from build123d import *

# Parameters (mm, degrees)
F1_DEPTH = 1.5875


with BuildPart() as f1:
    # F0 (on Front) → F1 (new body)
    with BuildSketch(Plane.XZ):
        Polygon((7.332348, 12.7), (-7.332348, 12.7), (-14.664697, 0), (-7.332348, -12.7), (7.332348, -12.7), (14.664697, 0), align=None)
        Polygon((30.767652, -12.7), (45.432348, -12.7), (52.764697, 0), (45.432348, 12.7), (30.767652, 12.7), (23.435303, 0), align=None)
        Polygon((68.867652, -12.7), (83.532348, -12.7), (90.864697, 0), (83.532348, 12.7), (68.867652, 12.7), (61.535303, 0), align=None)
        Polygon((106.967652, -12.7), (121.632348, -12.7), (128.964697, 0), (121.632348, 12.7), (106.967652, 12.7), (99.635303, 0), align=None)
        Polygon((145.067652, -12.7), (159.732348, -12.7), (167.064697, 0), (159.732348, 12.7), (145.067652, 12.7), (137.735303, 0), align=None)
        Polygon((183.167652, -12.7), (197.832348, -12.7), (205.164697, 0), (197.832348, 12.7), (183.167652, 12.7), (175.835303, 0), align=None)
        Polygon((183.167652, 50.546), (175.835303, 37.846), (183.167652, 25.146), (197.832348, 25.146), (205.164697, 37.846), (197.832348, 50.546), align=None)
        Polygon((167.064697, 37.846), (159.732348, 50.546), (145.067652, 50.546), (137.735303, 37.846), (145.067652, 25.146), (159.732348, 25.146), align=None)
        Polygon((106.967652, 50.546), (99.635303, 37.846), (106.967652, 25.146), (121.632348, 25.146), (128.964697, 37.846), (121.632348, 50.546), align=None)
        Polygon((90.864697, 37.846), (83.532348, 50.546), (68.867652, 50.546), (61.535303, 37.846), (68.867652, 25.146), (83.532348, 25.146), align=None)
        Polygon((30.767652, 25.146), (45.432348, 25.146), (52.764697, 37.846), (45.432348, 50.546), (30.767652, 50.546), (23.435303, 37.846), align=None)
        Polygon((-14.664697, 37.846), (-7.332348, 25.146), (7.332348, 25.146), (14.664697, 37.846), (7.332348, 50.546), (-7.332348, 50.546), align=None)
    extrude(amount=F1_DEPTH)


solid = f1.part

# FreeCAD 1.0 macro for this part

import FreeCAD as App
import Part
import Sketcher
Q = App.Units.Quantity

doc = App.newDocument("Part")
body = doc.addObject("PartDesign::Body", "Body")
body.AllowCompound = True

sketch1 = body.newObject("Sketcher::SketchObject", "Sketch")
sketch1.AttachmentSupport = (doc.getObject("XZ_Plane"), [""])
sketch1.MapMode = "FlatFace"
sketch1.addGeometry(Part.LineSegment(App.Vector(7, 13, 0), App.Vector(-7, 13, 0)), False)
sketch1.addGeometry(Part.LineSegment(App.Vector(-7, 13, 0), App.Vector(-15, 0, 0)), False)
sketch1.addGeometry(Part.LineSegment(App.Vector(-15, 0, 0), App.Vector(-7, -13, 0)), False)
sketch1.addGeometry(Part.LineSegment(App.Vector(-7, -13, 0), App.Vector(7, -13, 0)), False)
sketch1.addGeometry(Part.LineSegment(App.Vector(7, -13, 0), App.Vector(15, 0, 0)), False)
sketch1.addGeometry(Part.LineSegment(App.Vector(15, 0, 0), App.Vector(7, 13, 0)), False)
sketch1.addGeometry(Part.LineSegment(App.Vector(31, -13, 0), App.Vector(45, -13, 0)), False)
sketch1.addGeometry(Part.LineSegment(App.Vector(45, -13, 0), App.Vector(53, 0, 0)), False)
sketch1.addGeometry(Part.LineSegment(App.Vector(53, 0, 0), App.Vector(45, 13, 0)), False)
sketch1.addGeometry(Part.LineSegment(App.Vector(45, 13, 0), App.Vector(31, 13, 0)), False)
sketch1.addGeometry(Part.LineSegment(App.Vector(31, 13, 0), App.Vector(23, 0, 0)), False)
sketch1.addGeometry(Part.LineSegment(App.Vector(23, 0, 0), App.Vector(31, -13, 0)), False)
sketch1.addGeometry(Part.LineSegment(App.Vector(69, -13, 0), App.Vector(84, -13, 0)), False)
sketch1.addGeometry(Part.LineSegment(App.Vector(84, -13, 0), App.Vector(91, 0, 0)), False)
sketch1.addGeometry(Part.LineSegment(App.Vector(91, 0, 0), App.Vector(84, 13, 0)), False)
sketch1.addGeometry(Part.LineSegment(App.Vector(84, 13, 0), App.Vector(69, 13, 0)), False)
sketch1.addGeometry(Part.LineSegment(App.Vector(69, 13, 0), App.Vector(62, 0, 0)), False)
sketch1.addGeometry(Part.LineSegment(App.Vector(62, 0, 0), App.Vector(69, -13, 0)), False)
sketch1.addGeometry(Part.LineSegment(App.Vector(107, -13, 0), App.Vector(122, -13, 0)), False)
sketch1.addGeometry(Part.LineSegment(App.Vector(122, -13, 0), App.Vector(129, 0, 0)), False)
sketch1.addGeometry(Part.LineSegment(App.Vector(129, 0, 0), App.Vector(122, 13, 0)), False)
sketch1.addGeometry(Part.LineSegment(App.Vector(122, 13, 0), App.Vector(107, 13, 0)), False)
sketch1.addGeometry(Part.LineSegment(App.Vector(107, 13, 0), App.Vector(100, 0, 0)), False)
sketch1.addGeometry(Part.LineSegment(App.Vector(100, 0, 0), App.Vector(107, -13, 0)), False)
sketch1.addGeometry(Part.LineSegment(App.Vector(145, -13, 0), App.Vector(160, -13, 0)), False)
sketch1.addGeometry(Part.LineSegment(App.Vector(160, -13, 0), App.Vector(167, 0, 0)), False)
sketch1.addGeometry(Part.LineSegment(App.Vector(167, 0, 0), App.Vector(160, 13, 0)), False)
sketch1.addGeometry(Part.LineSegment(App.Vector(160, 13, 0), App.Vector(145, 13, 0)), False)
sketch1.addGeometry(Part.LineSegment(App.Vector(145, 13, 0), App.Vector(138, 0, 0)), False)
sketch1.addGeometry(Part.LineSegment(App.Vector(138, 0, 0), App.Vector(145, -13, 0)), False)
sketch1.addGeometry(Part.LineSegment(App.Vector(183, -13, 0), App.Vector(198, -13, 0)), False)
sketch1.addGeometry(Part.LineSegment(App.Vector(198, -13, 0), App.Vector(205, 0, 0)), False)
sketch1.addGeometry(Part.LineSegment(App.Vector(205, 0, 0), App.Vector(198, 13, 0)), False)
sketch1.addGeometry(Part.LineSegment(App.Vector(198, 13, 0), App.Vector(183, 13, 0)), False)
sketch1.addGeometry(Part.LineSegment(App.Vector(183, 13, 0), App.Vector(176, 0, 0)), False)
sketch1.addGeometry(Part.LineSegment(App.Vector(176, 0, 0), App.Vector(183, -13, 0)), False)
sketch1.addGeometry(Part.LineSegment(App.Vector(183, 51, 0), App.Vector(176, 38, 0)), False)
sketch1.addGeometry(Part.LineSegment(App.Vector(176, 38, 0), App.Vector(183, 25, 0)), False)
sketch1.addGeometry(Part.LineSegment(App.Vector(183, 25, 0), App.Vector(198, 25, 0)), False)
sketch1.addGeometry(Part.LineSegment(App.Vector(198, 25, 0), App.Vector(205, 38, 0)), False)
sketch1.addGeometry(Part.LineSegment(App.Vector(205, 38, 0), App.Vector(198, 51, 0)), False)
sketch1.addGeometry(Part.LineSegment(App.Vector(198, 51, 0), App.Vector(183, 51, 0)), False)
sketch1.addGeometry(Part.LineSegment(App.Vector(167, 38, 0), App.Vector(160, 51, 0)), False)
sketch1.addGeometry(Part.LineSegment(App.Vector(160, 51, 0), App.Vector(145, 51, 0)), False)
sketch1.addGeometry(Part.LineSegment(App.Vector(145, 51, 0), App.Vector(138, 38, 0)), False)
sketch1.addGeometry(Part.LineSegment(App.Vector(138, 38, 0), App.Vector(145, 25, 0)), False)
sketch1.addGeometry(Part.LineSegment(App.Vector(145, 25, 0), App.Vector(160, 25, 0)), False)
sketch1.addGeometry(Part.LineSegment(App.Vector(160, 25, 0), App.Vector(167, 38, 0)), False)
sketch1.addGeometry(Part.LineSegment(App.Vector(107, 51, 0), App.Vector(100, 38, 0)), False)
sketch1.addGeometry(Part.LineSegment(App.Vector(100, 38, 0), App.Vector(107, 25, 0)), False)
sketch1.addGeometry(Part.LineSegment(App.Vector(107, 25, 0), App.Vector(122, 25, 0)), False)
sketch1.addGeometry(Part.LineSegment(App.Vector(122, 25, 0), App.Vector(129, 38, 0)), False)
sketch1.addGeometry(Part.LineSegment(App.Vector(129, 38, 0), App.Vector(122, 51, 0)), False)
sketch1.addGeometry(Part.LineSegment(App.Vector(122, 51, 0), App.Vector(107, 51, 0)), False)
sketch1.addGeometry(Part.LineSegment(App.Vector(91, 38, 0), App.Vector(84, 51, 0)), False)
sketch1.addGeometry(Part.LineSegment(App.Vector(84, 51, 0), App.Vector(69, 51, 0)), False)
sketch1.addGeometry(Part.LineSegment(App.Vector(69, 51, 0), App.Vector(62, 38, 0)), False)
sketch1.addGeometry(Part.LineSegment(App.Vector(62, 38, 0), App.Vector(69, 25, 0)), False)
sketch1.addGeometry(Part.LineSegment(App.Vector(69, 25, 0), App.Vector(84, 25, 0)), False)
sketch1.addGeometry(Part.LineSegment(App.Vector(84, 25, 0), App.Vector(91, 38, 0)), False)
sketch1.addGeometry(Part.LineSegment(App.Vector(31, 25, 0), App.Vector(45, 25, 0)), False)
sketch1.addGeometry(Part.LineSegment(App.Vector(45, 25, 0), App.Vector(53, 38, 0)), False)
sketch1.addGeometry(Part.LineSegment(App.Vector(53, 38, 0), App.Vector(45, 51, 0)), False)
sketch1.addGeometry(Part.LineSegment(App.Vector(45, 51, 0), App.Vector(31, 51, 0)), False)
sketch1.addGeometry(Part.LineSegment(App.Vector(31, 51, 0), App.Vector(23, 38, 0)), False)
sketch1.addGeometry(Part.LineSegment(App.Vector(23, 38, 0), App.Vector(31, 25, 0)), False)
sketch1.addGeometry(Part.LineSegment(App.Vector(-15, 38, 0), App.Vector(-7, 25, 0)), False)
sketch1.addGeometry(Part.LineSegment(App.Vector(-7, 25, 0), App.Vector(7, 25, 0)), False)
sketch1.addGeometry(Part.LineSegment(App.Vector(7, 25, 0), App.Vector(15, 38, 0)), False)
sketch1.addGeometry(Part.LineSegment(App.Vector(15, 38, 0), App.Vector(7, 51, 0)), False)
sketch1.addGeometry(Part.LineSegment(App.Vector(7, 51, 0), App.Vector(-7, 51, 0)), False)
sketch1.addGeometry(Part.LineSegment(App.Vector(-7, 51, 0), App.Vector(-15, 38, 0)), False)
sketch1.addConstraint(Sketcher.Constraint("Coincident", 0, 2, 1, 1))
sketch1.addConstraint(Sketcher.Constraint("Coincident", 1, 2, 2, 1))
sketch1.addConstraint(Sketcher.Constraint("Coincident", 2, 2, 3, 1))
sketch1.addConstraint(Sketcher.Constraint("Coincident", 3, 2, 4, 1))
sketch1.addConstraint(Sketcher.Constraint("Coincident", 4, 2, 5, 1))
sketch1.addConstraint(Sketcher.Constraint("Coincident", 5, 2, 0, 1))
sketch1.addConstraint(Sketcher.Constraint("Coincident", 6, 2, 7, 1))
sketch1.addConstraint(Sketcher.Constraint("Coincident", 7, 2, 8, 1))
sketch1.addConstraint(Sketcher.Constraint("Coincident", 8, 2, 9, 1))
sketch1.addConstraint(Sketcher.Constraint("Coincident", 9, 2, 10, 1))
sketch1.addConstraint(Sketcher.Constraint("Coincident", 10, 2, 11, 1))
sketch1.addConstraint(Sketcher.Constraint("Coincident", 11, 2, 6, 1))
sketch1.addConstraint(Sketcher.Constraint("Coincident", 12, 2, 13, 1))
sketch1.addConstraint(Sketcher.Constraint("Coincident", 13, 2, 14, 1))
sketch1.addConstraint(Sketcher.Constraint("Coincident", 14, 2, 15, 1))
sketch1.addConstraint(Sketcher.Constraint("Coincident", 15, 2, 16, 1))
sketch1.addConstraint(Sketcher.Constraint("Coincident", 16, 2, 17, 1))
sketch1.addConstraint(Sketcher.Constraint("Coincident", 17, 2, 12, 1))
sketch1.addConstraint(Sketcher.Constraint("Coincident", 18, 2, 19, 1))
sketch1.addConstraint(Sketcher.Constraint("Coincident", 19, 2, 20, 1))
sketch1.addConstraint(Sketcher.Constraint("Coincident", 20, 2, 21, 1))
sketch1.addConstraint(Sketcher.Constraint("Coincident", 21, 2, 22, 1))
sketch1.addConstraint(Sketcher.Constraint("Coincident", 22, 2, 23, 1))
sketch1.addConstraint(Sketcher.Constraint("Coincident", 23, 2, 18, 1))
sketch1.addConstraint(Sketcher.Constraint("Coincident", 24, 2, 25, 1))
sketch1.addConstraint(Sketcher.Constraint("Coincident", 25, 2, 26, 1))
sketch1.addConstraint(Sketcher.Constraint("Coincident", 26, 2, 27, 1))
sketch1.addConstraint(Sketcher.Constraint("Coincident", 27, 2, 28, 1))
sketch1.addConstraint(Sketcher.Constraint("Coincident", 28, 2, 29, 1))
sketch1.addConstraint(Sketcher.Constraint("Coincident", 29, 2, 24, 1))
sketch1.addConstraint(Sketcher.Constraint("Coincident", 30, 2, 31, 1))
sketch1.addConstraint(Sketcher.Constraint("Coincident", 31, 2, 32, 1))
sketch1.addConstraint(Sketcher.Constraint("Coincident", 32, 2, 33, 1))
sketch1.addConstraint(Sketcher.Constraint("Coincident", 33, 2, 34, 1))
sketch1.addConstraint(Sketcher.Constraint("Coincident", 34, 2, 35, 1))
sketch1.addConstraint(Sketcher.Constraint("Coincident", 35, 2, 30, 1))
sketch1.addConstraint(Sketcher.Constraint("Coincident", 36, 2, 37, 1))
sketch1.addConstraint(Sketcher.Constraint("Coincident", 37, 2, 38, 1))
sketch1.addConstraint(Sketcher.Constraint("Coincident", 38, 2, 39, 1))
sketch1.addConstraint(Sketcher.Constraint("Coincident", 39, 2, 40, 1))
sketch1.addConstraint(Sketcher.Constraint("Coincident", 40, 2, 41, 1))
sketch1.addConstraint(Sketcher.Constraint("Coincident", 41, 2, 36, 1))
sketch1.addConstraint(Sketcher.Constraint("Coincident", 42, 2, 43, 1))
sketch1.addConstraint(Sketcher.Constraint("Coincident", 43, 2, 44, 1))
sketch1.addConstraint(Sketcher.Constraint("Coincident", 44, 2, 45, 1))
sketch1.addConstraint(Sketcher.Constraint("Coincident", 45, 2, 46, 1))
sketch1.addConstraint(Sketcher.Constraint("Coincident", 46, 2, 47, 1))
sketch1.addConstraint(Sketcher.Constraint("Coincident", 47, 2, 42, 1))
sketch1.addConstraint(Sketcher.Constraint("Coincident", 48, 2, 49, 1))
sketch1.addConstraint(Sketcher.Constraint("Coincident", 49, 2, 50, 1))
sketch1.addConstraint(Sketcher.Constraint("Coincident", 50, 2, 51, 1))
sketch1.addConstraint(Sketcher.Constraint("Coincident", 51, 2, 52, 1))
sketch1.addConstraint(Sketcher.Constraint("Coincident", 52, 2, 53, 1))
sketch1.addConstraint(Sketcher.Constraint("Coincident", 53, 2, 48, 1))
sketch1.addConstraint(Sketcher.Constraint("Coincident", 54, 2, 55, 1))
sketch1.addConstraint(Sketcher.Constraint("Coincident", 55, 2, 56, 1))
sketch1.addConstraint(Sketcher.Constraint("Coincident", 56, 2, 57, 1))
sketch1.addConstraint(Sketcher.Constraint("Coincident", 57, 2, 58, 1))
sketch1.addConstraint(Sketcher.Constraint("Coincident", 58, 2, 59, 1))
sketch1.addConstraint(Sketcher.Constraint("Coincident", 59, 2, 54, 1))
sketch1.addConstraint(Sketcher.Constraint("Coincident", 60, 2, 61, 1))
sketch1.addConstraint(Sketcher.Constraint("Coincident", 61, 2, 62, 1))
sketch1.addConstraint(Sketcher.Constraint("Coincident", 62, 2, 63, 1))
sketch1.addConstraint(Sketcher.Constraint("Coincident", 63, 2, 64, 1))
sketch1.addConstraint(Sketcher.Constraint("Coincident", 64, 2, 65, 1))
sketch1.addConstraint(Sketcher.Constraint("Coincident", 65, 2, 60, 1))
sketch1.addConstraint(Sketcher.Constraint("Coincident", 66, 2, 67, 1))
sketch1.addConstraint(Sketcher.Constraint("Coincident", 67, 2, 68, 1))
sketch1.addConstraint(Sketcher.Constraint("Coincident", 68, 2, 69, 1))
sketch1.addConstraint(Sketcher.Constraint("Coincident", 69, 2, 70, 1))
sketch1.addConstraint(Sketcher.Constraint("Coincident", 70, 2, 71, 1))
sketch1.addConstraint(Sketcher.Constraint("Coincident", 71, 2, 66, 1))
sketch1.addConstraint(Sketcher.Constraint("Horizontal", 0))
sketch1.addConstraint(Sketcher.Constraint("Horizontal", 3))
sketch1.addConstraint(Sketcher.Constraint("Horizontal", 6))
sketch1.addConstraint(Sketcher.Constraint("Horizontal", 9))
sketch1.addConstraint(Sketcher.Constraint("Horizontal", 12))
sketch1.addConstraint(Sketcher.Constraint("Horizontal", 15))
sketch1.addConstraint(Sketcher.Constraint("Horizontal", 18))
sketch1.addConstraint(Sketcher.Constraint("Horizontal", 21))
sketch1.addConstraint(Sketcher.Constraint("Horizontal", 24))
sketch1.addConstraint(Sketcher.Constraint("Horizontal", 27))
sketch1.addConstraint(Sketcher.Constraint("Horizontal", 30))
sketch1.addConstraint(Sketcher.Constraint("Horizontal", 33))
sketch1.addConstraint(Sketcher.Constraint("Horizontal", 38))
sketch1.addConstraint(Sketcher.Constraint("Horizontal", 41))
sketch1.addConstraint(Sketcher.Constraint("Horizontal", 43))
sketch1.addConstraint(Sketcher.Constraint("Horizontal", 46))
sketch1.addConstraint(Sketcher.Constraint("Horizontal", 50))
sketch1.addConstraint(Sketcher.Constraint("Horizontal", 53))
sketch1.addConstraint(Sketcher.Constraint("Horizontal", 55))
sketch1.addConstraint(Sketcher.Constraint("Horizontal", 58))
sketch1.addConstraint(Sketcher.Constraint("Horizontal", 60))
sketch1.addConstraint(Sketcher.Constraint("Horizontal", 63))
sketch1.addConstraint(Sketcher.Constraint("Horizontal", 67))
sketch1.addConstraint(Sketcher.Constraint("Horizontal", 70))
sketch1.addConstraint(Sketcher.Constraint("Symmetric", 0, 2, 3, 2, -1, 1))
sketch1.addConstraint(Sketcher.Constraint("Symmetric", 1, 2, 4, 2, -1, 1))
sketch1.addConstraint(Sketcher.Constraint("Symmetric", 68, 2, 71, 2, -2))
sketch1.addConstraint(Sketcher.Constraint("Symmetric", 6, 2, 8, 2, -1))
sketch1.addConstraint(Sketcher.Constraint("Symmetric", 12, 2, 14, 2, -1))
sketch1.addConstraint(Sketcher.Constraint("Symmetric", 18, 2, 20, 2, -1))
sketch1.addConstraint(Sketcher.Constraint("Symmetric", 24, 2, 26, 2, -1))
sketch1.addConstraint(Sketcher.Constraint("Symmetric", 30, 2, 32, 2, -1))
sketch1.addConstraint(Sketcher.Constraint("PointOnObject", 1, 2, -1))
sketch1.addConstraint(Sketcher.Constraint("PointOnObject", 7, 2, -1))
sketch1.addConstraint(Sketcher.Constraint("PointOnObject", 10, 2, -1))
sketch1.addConstraint(Sketcher.Constraint("PointOnObject", 13, 2, -1))
sketch1.addConstraint(Sketcher.Constraint("PointOnObject", 16, 2, -1))
sketch1.addConstraint(Sketcher.Constraint("PointOnObject", 19, 2, -1))
sketch1.addConstraint(Sketcher.Constraint("PointOnObject", 22, 2, -1))
sketch1.addConstraint(Sketcher.Constraint("PointOnObject", 25, 2, -1))
sketch1.addConstraint(Sketcher.Constraint("PointOnObject", 28, 2, -1))
sketch1.addConstraint(Sketcher.Constraint("PointOnObject", 31, 2, -1))
sketch1.addConstraint(Sketcher.Constraint("PointOnObject", 34, 2, -1))
sketch1.addConstraint(Sketcher.Constraint("Parallel", 2, 5))
sketch1.addConstraint(Sketcher.Constraint("Parallel", 4, 7))
sketch1.addConstraint(Sketcher.Constraint("Parallel", 5, 8))
sketch1.addConstraint(Sketcher.Constraint("Parallel", 7, 10))
sketch1.addConstraint(Sketcher.Constraint("Parallel", 8, 11))
sketch1.addConstraint(Sketcher.Constraint("Parallel", 10, 13))
sketch1.addConstraint(Sketcher.Constraint("Parallel", 13, 16))
sketch1.addConstraint(Sketcher.Constraint("Parallel", 14, 17))
sketch1.addConstraint(Sketcher.Constraint("Parallel", 16, 19))
sketch1.addConstraint(Sketcher.Constraint("Parallel", 19, 22))
sketch1.addConstraint(Sketcher.Constraint("Parallel", 20, 23))
sketch1.addConstraint(Sketcher.Constraint("Parallel", 22, 25))
sketch1.addConstraint(Sketcher.Constraint("Parallel", 25, 28))
sketch1.addConstraint(Sketcher.Constraint("Parallel", 26, 29))
sketch1.addConstraint(Sketcher.Constraint("Parallel", 28, 31))
sketch1.addConstraint(Sketcher.Constraint("Parallel", 31, 34))
sketch1.addConstraint(Sketcher.Constraint("Parallel", 32, 35))
sketch1.addConstraint(Sketcher.Constraint("Parallel", 34, 36))
sketch1.addConstraint(Sketcher.Constraint("Parallel", 35, 37))
sketch1.addConstraint(Sketcher.Constraint("Parallel", 36, 39))
sketch1.addConstraint(Sketcher.Constraint("Parallel", 37, 40))
sketch1.addConstraint(Sketcher.Constraint("Parallel", 40, 42))
sketch1.addConstraint(Sketcher.Constraint("Parallel", 39, 44))
sketch1.addConstraint(Sketcher.Constraint("Parallel", 42, 45))
sketch1.addConstraint(Sketcher.Constraint("Parallel", 44, 47))
sketch1.addConstraint(Sketcher.Constraint("Parallel", 47, 48))
sketch1.addConstraint(Sketcher.Constraint("Parallel", 45, 49))
sketch1.addConstraint(Sketcher.Constraint("Parallel", 48, 51))
sketch1.addConstraint(Sketcher.Constraint("Parallel", 49, 52))
sketch1.addConstraint(Sketcher.Constraint("Parallel", 52, 54))
sketch1.addConstraint(Sketcher.Constraint("Parallel", 51, 56))
sketch1.addConstraint(Sketcher.Constraint("Parallel", 54, 57))
sketch1.addConstraint(Sketcher.Constraint("Parallel", 56, 59))
sketch1.addConstraint(Sketcher.Constraint("Parallel", 59, 61))
sketch1.addConstraint(Sketcher.Constraint("Parallel", 57, 62))
sketch1.addConstraint(Sketcher.Constraint("Parallel", 61, 64))
sketch1.addConstraint(Sketcher.Constraint("Parallel", 62, 65))
sketch1.addConstraint(Sketcher.Constraint("Parallel", 65, 66))
sketch1.addConstraint(Sketcher.Constraint("Parallel", 64, 68))
sketch1.addConstraint(Sketcher.Constraint("Parallel", 66, 69))
sketch1.addConstraint(Sketcher.Constraint("Parallel", 68, 71))
sketch1.addConstraint(Sketcher.Constraint("Horizontal", 3, 2, 6, 2))
sketch1.addConstraint(Sketcher.Constraint("Horizontal", 11, 2, 12, 2))
sketch1.addConstraint(Sketcher.Constraint("Horizontal", 17, 2, 18, 2))
sketch1.addConstraint(Sketcher.Constraint("Horizontal", 23, 2, 24, 2))
sketch1.addConstraint(Sketcher.Constraint("Horizontal", 29, 2, 30, 2))
sketch1.addConstraint(Sketcher.Constraint("Horizontal", 36, 2, 39, 2))
sketch1.addConstraint(Sketcher.Constraint("Horizontal", 41, 2, 42, 2))
sketch1.addConstraint(Sketcher.Constraint("Horizontal", 39, 2, 44, 2))
sketch1.addConstraint(Sketcher.Constraint("Horizontal", 38, 2, 45, 2))
sketch1.addConstraint(Sketcher.Constraint("Horizontal", 44, 2, 47, 2))
sketch1.addConstraint(Sketcher.Constraint("Horizontal", 47, 2, 48, 2))
sketch1.addConstraint(Sketcher.Constraint("Horizontal", 46, 2, 49, 2))
sketch1.addConstraint(Sketcher.Constraint("Horizontal", 48, 2, 51, 2))
sketch1.addConstraint(Sketcher.Constraint("Horizontal", 43, 2, 52, 2))
sketch1.addConstraint(Sketcher.Constraint("Horizontal", 53, 2, 54, 2))
sketch1.addConstraint(Sketcher.Constraint("Horizontal", 51, 2, 56, 2))
sketch1.addConstraint(Sketcher.Constraint("Horizontal", 50, 2, 57, 2))
sketch1.addConstraint(Sketcher.Constraint("Horizontal", 56, 2, 59, 2))
sketch1.addConstraint(Sketcher.Constraint("Horizontal", 58, 2, 60, 2))
sketch1.addConstraint(Sketcher.Constraint("Horizontal", 59, 2, 61, 2))
sketch1.addConstraint(Sketcher.Constraint("Horizontal", 55, 2, 62, 2))
sketch1.addConstraint(Sketcher.Constraint("Horizontal", 61, 2, 64, 2))
sketch1.addConstraint(Sketcher.Constraint("Horizontal", 65, 2, 66, 2))
sketch1.addConstraint(Sketcher.Constraint("Horizontal", 64, 2, 68, 2))
sketch1.addConstraint(Sketcher.Constraint("Horizontal", 63, 2, 69, 2))
sketch1.addConstraint(Sketcher.Constraint("Vertical", 34, 2, 36, 2))
sketch1.addConstraint(Sketcher.Constraint("Vertical", 35, 2, 37, 2))
sketch1.addConstraint(Sketcher.Constraint("Vertical", 32, 2, 38, 2))
sketch1.addConstraint(Sketcher.Constraint("Vertical", 38, 2, 40, 2))
sketch1.addConstraint(Sketcher.Constraint("Vertical", 26, 2, 42, 2))
sketch1.addConstraint(Sketcher.Constraint("Vertical", 29, 2, 43, 2))
sketch1.addConstraint(Sketcher.Constraint("Vertical", 22, 2, 48, 2))
sketch1.addConstraint(Sketcher.Constraint("Vertical", 20, 2, 50, 2))
sketch1.addConstraint(Sketcher.Constraint("Vertical", 14, 2, 54, 2))
sketch1.addConstraint(Sketcher.Constraint("Vertical", 17, 2, 55, 2))
sketch1.addConstraint(Sketcher.Constraint("Vertical", 8, 2, 60, 2))
sketch1.addConstraint(Sketcher.Constraint("Vertical", 11, 2, 63, 2))
sketch1.addConstraint(Sketcher.Constraint("Vertical", 2, 2, 66, 2))
sketch1.addConstraint(Sketcher.Constraint("Equal", 3, 6))
sketch1.addConstraint(Sketcher.Constraint("Equal", 9, 12))
sketch1.addConstraint(Sketcher.Constraint("Equal", 15, 18))
sketch1.addConstraint(Sketcher.Constraint("Equal", 21, 24))
sketch1.addConstraint(Sketcher.Constraint("Equal", 27, 30))
sketch1.addConstraint(Sketcher.Constraint("Angle", 1, Q("-120.000002 deg")))
sketch1.addConstraint(Sketcher.Constraint("DistanceY", -1, 1, 0, 2, Q("0.5 in")))
sketch1.addConstraint(Sketcher.Constraint("DistanceY", -1, 1, 36, 2, Q("1.49 in")))
sketch1.addConstraint(Sketcher.Constraint("DistanceX", 0, 2, 0, 1, Q("14.664696 mm")))
sketch1.addConstraint(Sketcher.Constraint("DistanceX", -1, 1, 9, 2, Q("30.767652 mm")))
sketch1.addConstraint(Sketcher.Constraint("DistanceX", -1, 1, 12, 2, Q("83.532348 mm")))
sketch1.addConstraint(Sketcher.Constraint("DistanceX", -1, 1, 21, 2, Q("106.967652 mm")))
sketch1.addConstraint(Sketcher.Constraint("DistanceX", -1, 1, 24, 2, Q("159.732348 mm")))
sketch1.addConstraint(Sketcher.Constraint("DistanceX", -1, 1, 30, 2, Q("197.832348 mm")))
pad1 = body.newObject("PartDesign::Pad", "Pad")
pad1.Profile = sketch1
pad1.Length = Q("0.0625 in")

doc.recompute()
